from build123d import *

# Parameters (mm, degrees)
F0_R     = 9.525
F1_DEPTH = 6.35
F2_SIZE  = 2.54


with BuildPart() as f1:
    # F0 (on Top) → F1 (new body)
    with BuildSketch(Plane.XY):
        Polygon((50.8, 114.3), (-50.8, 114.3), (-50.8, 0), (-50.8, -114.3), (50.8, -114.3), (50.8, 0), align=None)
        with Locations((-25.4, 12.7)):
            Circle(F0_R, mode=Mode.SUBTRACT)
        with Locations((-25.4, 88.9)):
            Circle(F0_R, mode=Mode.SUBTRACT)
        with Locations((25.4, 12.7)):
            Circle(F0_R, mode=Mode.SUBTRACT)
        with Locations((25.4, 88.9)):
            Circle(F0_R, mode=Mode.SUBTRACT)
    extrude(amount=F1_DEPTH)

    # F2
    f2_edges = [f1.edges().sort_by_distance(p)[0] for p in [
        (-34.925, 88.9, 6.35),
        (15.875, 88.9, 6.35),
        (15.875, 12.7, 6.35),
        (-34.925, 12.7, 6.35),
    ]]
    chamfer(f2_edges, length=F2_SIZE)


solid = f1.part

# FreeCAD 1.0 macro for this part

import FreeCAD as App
import Part
import Sketcher

V = App.Vector
Q = App.Units.Quantity


def edges_at(feature, points):
    """Names of the edges that pass closest to the given points."""
    edges = feature.Shape.Edges
    near = lambda p: min(range(len(edges)), key=lambda i: edges[i].distToShape(Part.Vertex(*p))[0])
    return sorted({f"Edge{near(p) + 1}" for p in points})

doc = App.newDocument("Part")
body = doc.addObject("PartDesign::Body", "Body")

sketch1 = body.newObject("Sketcher::SketchObject", "Sketch")
sketch1.AttachmentSupport = (doc.getObject("XY_Plane"), [""])
sketch1.MapMode = "FlatFace"
sketch1.addGeometry([
    Part.LineSegment(V(50.8, 114.3, 0), V(-50.8, 114.3, 0)),
    Part.LineSegment(V(-50.8, 114.3, 0), V(-50.8, -114.3, 0)),
    Part.LineSegment(V(-50.8, -114.3, 0), V(50.8, -114.3, 0)),
    Part.LineSegment(V(50.8, -114.3, 0), V(50.8, 114.3, 0)),
    Part.Circle(V(-25.4, 12.7, 0), V(0, 0, 1), 9.525),
    Part.Circle(V(25.4, 12.7, 0), V(0, 0, 1), 9.525),
    Part.Circle(V(-25.4, 88.9, 0), V(0, 0, 1), 9.525),
    Part.Circle(V(25.4, 88.9, 0), V(0, 0, 1), 9.525),
], False)
sketch1.addConstraint([
    Sketcher.Constraint("Coincident", 0, 2, 1, 1),
    Sketcher.Constraint("Coincident", 1, 2, 2, 1),
    Sketcher.Constraint("Coincident", 2, 2, 3, 1),
    Sketcher.Constraint("Coincident", 3, 2, 0, 1),
    Sketcher.Constraint("Horizontal", 0),
    Sketcher.Constraint("Vertical", 1),
    Sketcher.Constraint("Horizontal", 2),
    Sketcher.Constraint("Vertical", 3),
    Sketcher.Constraint("Equal", 4, 5),
    Sketcher.Constraint("Equal", 5, 6),
    Sketcher.Constraint("Equal", 6, 7),
    Sketcher.Constraint("Symmetric", 0, 2, 2, 2, -1, 1),
    Sketcher.Constraint("Symmetric", 4, 3, 5, 3, -2),
    Sketcher.Constraint("Symmetric", 6, 3, 7, 3, -2),
    Sketcher.Constraint("Vertical", 4, 3, 6, 3),
    Sketcher.Constraint("Diameter", 4, Q("0.75 in")),
    Sketcher.Constraint("DistanceX", 0, 2, 0, 1, Q("4 in")),
    Sketcher.Constraint("DistanceY", 1, 2, 1, 1, Q("9 in")),
    Sketcher.Constraint("DistanceX", 4, 3, -1, 1, Q("1 in")),
    Sketcher.Constraint("DistanceY", 4, 3, 6, 3, Q("3 in")),
    Sketcher.Constraint("DistanceY", 6, 3, 0, 2, Q("1 in")),
])
pad1 = body.newObject("PartDesign::Pad", "Pad")
pad1.Profile = sketch1
pad1.Length = Q("0.25 in")
doc.recompute()

chamfer = body.newObject("PartDesign::Chamfer", "Chamfer")
chamfer.Base = (pad1, edges_at(pad1, [
    (-34.925, 88.9, 6.35),
    (15.875, 88.9, 6.35),
    (15.875, 12.7, 6.35),
    (-34.925, 12.7, 6.35),
]))
chamfer.Size = Q("0.1 in")

doc.recompute()
